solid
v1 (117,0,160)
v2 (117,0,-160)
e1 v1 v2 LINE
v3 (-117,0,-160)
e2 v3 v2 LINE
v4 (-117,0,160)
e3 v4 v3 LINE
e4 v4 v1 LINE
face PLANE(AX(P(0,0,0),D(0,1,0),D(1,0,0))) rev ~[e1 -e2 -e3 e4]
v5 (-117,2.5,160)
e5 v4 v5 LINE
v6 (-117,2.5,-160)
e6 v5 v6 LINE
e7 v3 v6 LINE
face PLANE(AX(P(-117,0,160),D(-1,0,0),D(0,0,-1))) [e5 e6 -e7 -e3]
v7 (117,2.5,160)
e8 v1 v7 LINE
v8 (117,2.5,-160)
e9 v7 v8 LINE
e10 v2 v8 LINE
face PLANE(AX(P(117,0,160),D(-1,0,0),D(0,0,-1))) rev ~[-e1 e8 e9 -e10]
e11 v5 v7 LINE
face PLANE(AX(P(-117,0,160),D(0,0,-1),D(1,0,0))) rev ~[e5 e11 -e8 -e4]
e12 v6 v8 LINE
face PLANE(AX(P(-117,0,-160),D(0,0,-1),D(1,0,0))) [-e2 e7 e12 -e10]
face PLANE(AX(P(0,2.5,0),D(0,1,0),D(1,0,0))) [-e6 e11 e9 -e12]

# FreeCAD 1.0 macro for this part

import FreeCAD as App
import Part
import Sketcher

V = App.Vector

doc = App.newDocument("Part")
body = doc.addObject("PartDesign::Body", "Body")

# Sketch on XZ plane
sketch1 = body.newObject("Sketcher::SketchObject", "Sketch")
sketch1.AttachmentSupport = (doc.getObject("XZ_Plane"), [""])
sketch1.MapMode = "FlatFace"
sketch1.addGeometry([
    Part.LineSegment(V(-117, -160, 0), V(-117, 160, 0)),
    Part.LineSegment(V(-117, 160, 0), V(117, 160, 0)),
    Part.LineSegment(V(117, 160, 0), V(117, -160, 0)),
    Part.LineSegment(V(117, -160, 0), V(-117, -160, 0)),
], False)
sketch1.addConstraint([
    Sketcher.Constraint("Coincident", 0, 2, 1, 1),
    Sketcher.Constraint("Coincident", 1, 2, 2, 1),
    Sketcher.Constraint("Coincident", 2, 2, 3, 1),
    Sketcher.Constraint("Coincident", 3, 2, 0, 1),
    Sketcher.Constraint("Vertical", 0),
    Sketcher.Constraint("Horizontal", 1),
    Sketcher.Constraint("Vertical", 2),
    Sketcher.Constraint("Horizontal", 3),
    Sketcher.Constraint("Symmetric", 0, 2, 2, 2, -1, 1),
    Sketcher.Constraint("DistanceX", 1, 1, 1, 2, 234.0),
    Sketcher.Constraint("DistanceY", 0, 1, 0, 2, 320.0),
])
pad1 = body.newObject("PartDesign::Pad", "Pad")
pad1.Profile = sketch1
pad1.Length = 2.5
pad1.Reversed = True

doc.recompute()
